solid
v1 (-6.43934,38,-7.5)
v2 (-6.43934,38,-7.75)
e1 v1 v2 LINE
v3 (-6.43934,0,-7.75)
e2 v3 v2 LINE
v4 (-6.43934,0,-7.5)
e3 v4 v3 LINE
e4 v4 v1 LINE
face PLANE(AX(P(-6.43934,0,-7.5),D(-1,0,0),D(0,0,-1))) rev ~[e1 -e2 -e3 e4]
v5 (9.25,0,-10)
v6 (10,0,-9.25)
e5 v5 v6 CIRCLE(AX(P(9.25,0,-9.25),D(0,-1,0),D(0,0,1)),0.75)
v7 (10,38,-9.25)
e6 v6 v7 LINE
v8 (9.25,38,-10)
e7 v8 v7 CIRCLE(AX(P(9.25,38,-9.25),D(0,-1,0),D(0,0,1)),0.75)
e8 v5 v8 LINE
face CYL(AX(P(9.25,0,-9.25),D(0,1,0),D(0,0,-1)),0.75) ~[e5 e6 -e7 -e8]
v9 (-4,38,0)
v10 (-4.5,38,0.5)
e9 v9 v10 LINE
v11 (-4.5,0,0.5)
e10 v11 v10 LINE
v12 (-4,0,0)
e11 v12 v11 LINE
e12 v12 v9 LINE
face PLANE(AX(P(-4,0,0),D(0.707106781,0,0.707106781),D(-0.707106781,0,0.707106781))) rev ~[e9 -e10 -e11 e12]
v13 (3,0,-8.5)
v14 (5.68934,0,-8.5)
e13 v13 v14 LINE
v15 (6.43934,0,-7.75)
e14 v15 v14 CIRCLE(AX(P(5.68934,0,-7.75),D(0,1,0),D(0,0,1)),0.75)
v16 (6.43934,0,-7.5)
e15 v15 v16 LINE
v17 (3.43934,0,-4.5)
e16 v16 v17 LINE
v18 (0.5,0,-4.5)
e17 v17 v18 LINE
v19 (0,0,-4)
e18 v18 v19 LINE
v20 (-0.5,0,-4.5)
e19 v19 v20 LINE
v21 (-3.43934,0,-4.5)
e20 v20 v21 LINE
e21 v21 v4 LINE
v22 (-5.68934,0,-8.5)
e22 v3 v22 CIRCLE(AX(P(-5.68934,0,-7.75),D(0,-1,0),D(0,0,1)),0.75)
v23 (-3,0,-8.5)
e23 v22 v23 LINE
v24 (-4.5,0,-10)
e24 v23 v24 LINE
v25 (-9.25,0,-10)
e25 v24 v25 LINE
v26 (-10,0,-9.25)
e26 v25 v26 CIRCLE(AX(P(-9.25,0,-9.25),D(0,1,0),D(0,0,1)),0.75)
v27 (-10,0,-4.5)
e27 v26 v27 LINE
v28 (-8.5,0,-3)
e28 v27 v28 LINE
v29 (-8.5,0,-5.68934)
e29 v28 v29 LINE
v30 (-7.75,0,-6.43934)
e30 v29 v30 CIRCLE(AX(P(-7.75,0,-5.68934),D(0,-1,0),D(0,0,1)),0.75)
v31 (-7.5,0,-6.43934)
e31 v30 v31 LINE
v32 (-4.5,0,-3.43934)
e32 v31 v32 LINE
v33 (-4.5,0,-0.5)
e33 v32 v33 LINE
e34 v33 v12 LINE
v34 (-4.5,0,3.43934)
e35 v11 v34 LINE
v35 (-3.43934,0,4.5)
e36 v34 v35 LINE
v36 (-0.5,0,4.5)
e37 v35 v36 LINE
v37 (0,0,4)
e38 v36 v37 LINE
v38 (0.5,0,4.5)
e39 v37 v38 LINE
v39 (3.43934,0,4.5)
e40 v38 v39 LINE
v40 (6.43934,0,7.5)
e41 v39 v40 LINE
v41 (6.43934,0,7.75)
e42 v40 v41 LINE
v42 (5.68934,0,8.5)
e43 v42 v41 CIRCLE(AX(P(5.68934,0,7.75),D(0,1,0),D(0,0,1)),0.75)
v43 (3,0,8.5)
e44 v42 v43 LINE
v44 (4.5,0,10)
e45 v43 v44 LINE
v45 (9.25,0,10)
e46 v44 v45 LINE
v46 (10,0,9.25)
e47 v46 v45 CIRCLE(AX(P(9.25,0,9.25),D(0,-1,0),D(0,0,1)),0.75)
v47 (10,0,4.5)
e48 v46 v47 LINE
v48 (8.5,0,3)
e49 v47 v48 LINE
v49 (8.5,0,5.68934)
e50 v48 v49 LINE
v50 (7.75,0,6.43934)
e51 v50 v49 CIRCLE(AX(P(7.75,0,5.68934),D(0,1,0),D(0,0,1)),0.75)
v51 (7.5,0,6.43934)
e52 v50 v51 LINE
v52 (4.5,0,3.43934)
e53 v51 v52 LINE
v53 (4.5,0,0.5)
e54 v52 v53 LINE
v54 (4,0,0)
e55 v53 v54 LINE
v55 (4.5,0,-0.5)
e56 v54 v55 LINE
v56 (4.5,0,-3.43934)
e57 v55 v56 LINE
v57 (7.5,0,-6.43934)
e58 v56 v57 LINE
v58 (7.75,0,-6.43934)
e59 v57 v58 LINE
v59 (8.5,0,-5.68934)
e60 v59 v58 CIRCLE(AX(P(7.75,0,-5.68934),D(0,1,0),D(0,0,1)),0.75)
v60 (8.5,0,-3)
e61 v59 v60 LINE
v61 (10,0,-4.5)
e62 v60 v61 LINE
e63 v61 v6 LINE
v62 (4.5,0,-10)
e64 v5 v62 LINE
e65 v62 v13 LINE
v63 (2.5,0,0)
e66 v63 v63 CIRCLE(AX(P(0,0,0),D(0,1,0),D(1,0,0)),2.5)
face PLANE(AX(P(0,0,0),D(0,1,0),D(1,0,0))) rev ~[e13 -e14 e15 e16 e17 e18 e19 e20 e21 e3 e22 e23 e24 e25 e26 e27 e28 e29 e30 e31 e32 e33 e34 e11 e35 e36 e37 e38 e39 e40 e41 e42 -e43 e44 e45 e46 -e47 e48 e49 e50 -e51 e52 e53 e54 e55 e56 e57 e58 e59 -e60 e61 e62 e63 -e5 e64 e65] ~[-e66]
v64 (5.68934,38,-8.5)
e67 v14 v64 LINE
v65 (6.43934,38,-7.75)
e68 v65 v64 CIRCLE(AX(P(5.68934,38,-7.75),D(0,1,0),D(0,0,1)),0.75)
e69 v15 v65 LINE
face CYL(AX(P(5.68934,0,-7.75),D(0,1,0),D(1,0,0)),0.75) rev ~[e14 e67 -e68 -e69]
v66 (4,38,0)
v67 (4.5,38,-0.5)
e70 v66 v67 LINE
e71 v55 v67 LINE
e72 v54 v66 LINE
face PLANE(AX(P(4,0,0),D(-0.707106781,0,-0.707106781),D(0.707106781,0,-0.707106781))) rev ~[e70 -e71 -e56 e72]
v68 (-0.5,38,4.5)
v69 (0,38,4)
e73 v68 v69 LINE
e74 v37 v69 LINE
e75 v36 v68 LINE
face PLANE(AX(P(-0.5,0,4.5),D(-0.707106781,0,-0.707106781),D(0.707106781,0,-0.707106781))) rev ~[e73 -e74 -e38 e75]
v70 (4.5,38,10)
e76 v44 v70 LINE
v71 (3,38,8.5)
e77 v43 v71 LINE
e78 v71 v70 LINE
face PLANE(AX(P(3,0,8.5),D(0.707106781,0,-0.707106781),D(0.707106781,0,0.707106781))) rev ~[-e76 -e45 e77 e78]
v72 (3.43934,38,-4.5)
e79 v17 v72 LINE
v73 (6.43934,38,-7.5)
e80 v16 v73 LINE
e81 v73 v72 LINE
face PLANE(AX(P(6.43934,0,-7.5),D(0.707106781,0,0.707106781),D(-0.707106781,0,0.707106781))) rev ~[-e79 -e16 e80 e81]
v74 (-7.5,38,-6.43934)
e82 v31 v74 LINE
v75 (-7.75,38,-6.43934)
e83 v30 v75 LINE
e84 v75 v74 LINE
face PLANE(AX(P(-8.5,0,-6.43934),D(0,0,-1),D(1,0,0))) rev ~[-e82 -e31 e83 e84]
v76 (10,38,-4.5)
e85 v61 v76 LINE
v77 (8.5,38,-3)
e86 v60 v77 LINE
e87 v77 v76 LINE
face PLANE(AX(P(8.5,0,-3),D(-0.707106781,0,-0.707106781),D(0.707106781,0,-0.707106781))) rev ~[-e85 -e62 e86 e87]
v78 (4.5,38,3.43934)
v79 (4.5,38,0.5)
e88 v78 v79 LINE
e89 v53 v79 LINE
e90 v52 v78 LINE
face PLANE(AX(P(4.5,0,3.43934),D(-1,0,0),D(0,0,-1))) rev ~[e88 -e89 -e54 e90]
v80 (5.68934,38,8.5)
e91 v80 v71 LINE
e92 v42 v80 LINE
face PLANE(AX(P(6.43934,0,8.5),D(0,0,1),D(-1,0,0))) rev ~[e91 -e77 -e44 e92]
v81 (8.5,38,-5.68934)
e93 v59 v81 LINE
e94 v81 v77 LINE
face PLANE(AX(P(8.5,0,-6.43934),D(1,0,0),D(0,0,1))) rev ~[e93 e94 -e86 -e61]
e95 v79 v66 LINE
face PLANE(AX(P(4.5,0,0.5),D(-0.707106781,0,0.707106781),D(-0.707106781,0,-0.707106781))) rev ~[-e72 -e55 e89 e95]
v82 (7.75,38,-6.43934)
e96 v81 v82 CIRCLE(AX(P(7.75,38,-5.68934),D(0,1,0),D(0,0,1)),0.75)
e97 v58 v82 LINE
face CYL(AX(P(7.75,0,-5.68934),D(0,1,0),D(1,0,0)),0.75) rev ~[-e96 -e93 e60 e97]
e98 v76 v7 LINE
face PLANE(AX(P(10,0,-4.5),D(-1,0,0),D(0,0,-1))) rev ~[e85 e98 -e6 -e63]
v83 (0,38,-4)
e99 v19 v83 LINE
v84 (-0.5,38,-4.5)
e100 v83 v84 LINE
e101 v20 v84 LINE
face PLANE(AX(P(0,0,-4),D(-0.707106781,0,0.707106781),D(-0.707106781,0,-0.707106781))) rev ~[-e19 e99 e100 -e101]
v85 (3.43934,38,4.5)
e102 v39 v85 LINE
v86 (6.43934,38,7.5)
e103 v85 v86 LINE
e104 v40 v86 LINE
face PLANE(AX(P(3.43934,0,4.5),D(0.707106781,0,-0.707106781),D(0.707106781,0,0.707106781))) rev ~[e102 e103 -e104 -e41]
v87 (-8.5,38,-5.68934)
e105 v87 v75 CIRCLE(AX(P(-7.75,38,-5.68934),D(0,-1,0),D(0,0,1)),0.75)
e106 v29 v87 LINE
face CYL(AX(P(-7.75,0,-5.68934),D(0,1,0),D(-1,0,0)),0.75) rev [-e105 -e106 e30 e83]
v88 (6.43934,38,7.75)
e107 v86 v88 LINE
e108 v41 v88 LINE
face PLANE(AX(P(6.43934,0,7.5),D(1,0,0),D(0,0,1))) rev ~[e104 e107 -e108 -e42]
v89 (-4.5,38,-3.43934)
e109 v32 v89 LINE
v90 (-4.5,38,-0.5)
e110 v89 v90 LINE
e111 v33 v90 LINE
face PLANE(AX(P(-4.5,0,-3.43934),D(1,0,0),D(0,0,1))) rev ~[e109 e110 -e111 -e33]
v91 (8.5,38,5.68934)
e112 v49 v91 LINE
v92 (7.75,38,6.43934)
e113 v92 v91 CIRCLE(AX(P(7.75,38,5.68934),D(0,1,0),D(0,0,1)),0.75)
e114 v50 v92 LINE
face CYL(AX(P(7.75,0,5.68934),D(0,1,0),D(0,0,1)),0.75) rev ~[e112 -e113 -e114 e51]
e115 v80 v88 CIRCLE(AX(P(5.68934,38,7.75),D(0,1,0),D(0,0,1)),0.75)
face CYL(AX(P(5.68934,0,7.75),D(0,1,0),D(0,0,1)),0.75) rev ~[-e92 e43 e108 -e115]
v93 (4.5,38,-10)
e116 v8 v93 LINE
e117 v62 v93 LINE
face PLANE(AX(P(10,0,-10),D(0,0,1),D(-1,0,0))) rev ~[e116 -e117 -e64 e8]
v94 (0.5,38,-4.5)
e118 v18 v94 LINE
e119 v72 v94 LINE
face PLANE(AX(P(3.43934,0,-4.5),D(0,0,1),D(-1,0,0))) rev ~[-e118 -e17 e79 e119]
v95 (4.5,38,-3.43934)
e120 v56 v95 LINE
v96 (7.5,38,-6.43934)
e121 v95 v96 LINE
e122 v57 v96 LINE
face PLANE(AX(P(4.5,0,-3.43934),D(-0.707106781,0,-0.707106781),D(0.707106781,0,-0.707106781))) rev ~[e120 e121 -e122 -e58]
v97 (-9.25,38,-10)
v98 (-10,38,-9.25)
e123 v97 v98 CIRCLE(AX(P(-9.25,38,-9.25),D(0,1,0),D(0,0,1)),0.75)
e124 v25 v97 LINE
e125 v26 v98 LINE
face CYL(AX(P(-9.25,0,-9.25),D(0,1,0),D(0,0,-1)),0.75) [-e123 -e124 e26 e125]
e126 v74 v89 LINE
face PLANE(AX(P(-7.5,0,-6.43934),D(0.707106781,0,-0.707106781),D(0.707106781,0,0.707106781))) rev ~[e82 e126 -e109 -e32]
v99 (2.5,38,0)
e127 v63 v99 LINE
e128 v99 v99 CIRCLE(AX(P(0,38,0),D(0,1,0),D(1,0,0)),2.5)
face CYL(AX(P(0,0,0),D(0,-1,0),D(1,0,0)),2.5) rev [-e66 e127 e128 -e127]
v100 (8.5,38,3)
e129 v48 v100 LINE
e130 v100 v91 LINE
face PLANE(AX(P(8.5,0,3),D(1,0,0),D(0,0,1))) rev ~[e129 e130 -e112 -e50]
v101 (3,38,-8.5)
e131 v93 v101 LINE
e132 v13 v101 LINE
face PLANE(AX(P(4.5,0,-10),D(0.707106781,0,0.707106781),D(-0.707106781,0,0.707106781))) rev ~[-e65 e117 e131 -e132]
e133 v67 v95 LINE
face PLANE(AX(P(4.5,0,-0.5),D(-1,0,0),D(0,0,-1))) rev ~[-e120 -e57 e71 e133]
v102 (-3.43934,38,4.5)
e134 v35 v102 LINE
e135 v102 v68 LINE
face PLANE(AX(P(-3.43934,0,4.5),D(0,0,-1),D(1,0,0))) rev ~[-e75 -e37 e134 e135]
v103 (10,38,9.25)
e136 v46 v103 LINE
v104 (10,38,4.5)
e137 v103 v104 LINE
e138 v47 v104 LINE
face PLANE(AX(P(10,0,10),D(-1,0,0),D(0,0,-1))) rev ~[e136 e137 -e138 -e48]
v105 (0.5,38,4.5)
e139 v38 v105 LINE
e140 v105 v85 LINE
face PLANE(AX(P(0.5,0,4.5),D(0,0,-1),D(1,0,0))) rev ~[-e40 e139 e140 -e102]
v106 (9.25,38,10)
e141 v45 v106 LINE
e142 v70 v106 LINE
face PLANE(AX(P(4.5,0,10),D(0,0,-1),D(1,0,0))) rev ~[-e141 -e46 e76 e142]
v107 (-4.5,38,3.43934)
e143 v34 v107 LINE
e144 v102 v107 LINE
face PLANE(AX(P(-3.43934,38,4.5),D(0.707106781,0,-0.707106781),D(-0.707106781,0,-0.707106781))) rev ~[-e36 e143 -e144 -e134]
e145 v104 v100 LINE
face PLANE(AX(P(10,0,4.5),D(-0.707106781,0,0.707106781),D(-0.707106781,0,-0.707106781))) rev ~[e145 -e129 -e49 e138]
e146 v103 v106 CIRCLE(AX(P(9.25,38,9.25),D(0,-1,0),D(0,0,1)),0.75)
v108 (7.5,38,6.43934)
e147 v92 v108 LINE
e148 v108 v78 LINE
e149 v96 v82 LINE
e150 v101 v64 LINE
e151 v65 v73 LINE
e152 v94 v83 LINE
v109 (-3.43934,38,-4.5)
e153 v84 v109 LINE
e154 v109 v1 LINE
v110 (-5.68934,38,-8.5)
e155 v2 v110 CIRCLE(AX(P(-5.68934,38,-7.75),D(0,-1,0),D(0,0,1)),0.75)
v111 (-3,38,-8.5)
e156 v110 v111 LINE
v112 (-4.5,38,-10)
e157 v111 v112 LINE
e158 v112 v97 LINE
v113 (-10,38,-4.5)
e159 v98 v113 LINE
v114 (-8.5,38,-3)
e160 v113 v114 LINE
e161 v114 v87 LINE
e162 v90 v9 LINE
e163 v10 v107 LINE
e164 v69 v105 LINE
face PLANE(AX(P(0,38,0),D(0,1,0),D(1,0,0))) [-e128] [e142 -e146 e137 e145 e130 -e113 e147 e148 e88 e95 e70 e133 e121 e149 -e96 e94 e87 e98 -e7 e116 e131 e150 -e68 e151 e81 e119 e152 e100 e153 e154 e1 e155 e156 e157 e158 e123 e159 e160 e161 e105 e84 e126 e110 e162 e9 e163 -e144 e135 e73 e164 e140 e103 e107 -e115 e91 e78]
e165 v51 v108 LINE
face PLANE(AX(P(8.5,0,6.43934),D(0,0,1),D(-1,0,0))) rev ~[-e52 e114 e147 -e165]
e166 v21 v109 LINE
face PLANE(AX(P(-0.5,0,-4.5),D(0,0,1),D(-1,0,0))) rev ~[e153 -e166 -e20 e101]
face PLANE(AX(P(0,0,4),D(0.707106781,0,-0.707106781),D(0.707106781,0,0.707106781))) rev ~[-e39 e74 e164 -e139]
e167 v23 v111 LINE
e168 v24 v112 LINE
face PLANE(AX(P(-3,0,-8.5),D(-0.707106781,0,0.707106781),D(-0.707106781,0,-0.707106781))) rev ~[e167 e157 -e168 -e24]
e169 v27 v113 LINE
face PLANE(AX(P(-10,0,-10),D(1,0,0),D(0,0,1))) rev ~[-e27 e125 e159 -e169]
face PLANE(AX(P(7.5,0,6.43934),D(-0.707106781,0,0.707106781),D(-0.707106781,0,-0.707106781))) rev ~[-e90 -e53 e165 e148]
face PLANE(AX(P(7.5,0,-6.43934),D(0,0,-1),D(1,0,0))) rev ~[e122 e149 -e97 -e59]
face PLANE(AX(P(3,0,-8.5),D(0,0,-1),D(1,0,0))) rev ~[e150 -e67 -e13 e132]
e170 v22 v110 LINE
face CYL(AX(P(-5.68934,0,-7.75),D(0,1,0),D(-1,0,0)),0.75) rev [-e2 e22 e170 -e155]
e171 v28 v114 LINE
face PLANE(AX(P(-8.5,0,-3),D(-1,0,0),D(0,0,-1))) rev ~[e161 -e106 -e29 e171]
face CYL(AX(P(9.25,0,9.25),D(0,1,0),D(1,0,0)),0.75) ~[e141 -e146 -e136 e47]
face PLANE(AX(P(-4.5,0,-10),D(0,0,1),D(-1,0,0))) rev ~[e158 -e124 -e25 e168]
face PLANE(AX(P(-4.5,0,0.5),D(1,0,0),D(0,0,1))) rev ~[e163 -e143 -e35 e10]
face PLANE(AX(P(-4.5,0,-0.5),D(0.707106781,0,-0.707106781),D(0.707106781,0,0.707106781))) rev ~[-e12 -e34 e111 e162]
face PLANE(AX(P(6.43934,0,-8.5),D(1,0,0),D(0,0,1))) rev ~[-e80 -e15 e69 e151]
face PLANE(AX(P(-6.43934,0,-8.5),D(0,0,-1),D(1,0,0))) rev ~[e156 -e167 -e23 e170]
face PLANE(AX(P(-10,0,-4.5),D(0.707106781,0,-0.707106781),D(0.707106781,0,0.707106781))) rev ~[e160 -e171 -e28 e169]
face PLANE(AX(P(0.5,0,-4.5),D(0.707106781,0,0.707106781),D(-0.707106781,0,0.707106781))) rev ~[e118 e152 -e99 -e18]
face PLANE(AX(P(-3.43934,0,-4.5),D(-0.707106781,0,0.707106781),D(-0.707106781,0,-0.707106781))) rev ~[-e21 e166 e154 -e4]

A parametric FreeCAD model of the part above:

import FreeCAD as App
import Part
import Sketcher


def edges_at(feature, points):
    """Names of the edges that pass closest to the given points."""
    edges = feature.Shape.Edges
    near = lambda p: min(range(len(edges)), key=lambda i: edges[i].distToShape(Part.Vertex(*p))[0])
    return sorted({f"Edge{near(p) + 1}" for p in points})


def add_polygon(sketch, points):
    """Adds a closed chain of lines whose ends are joined by coincident constraints."""
    first, n = sketch.GeometryCount, len(points)
    for a, b in zip(points, points[1:] + points[:1]):
        sketch.addGeometry(Part.LineSegment(App.Vector(*a, 0), App.Vector(*b, 0)), False)
    for i in range(n):
        sketch.addConstraint(Sketcher.Constraint("Coincident", first + i, 2, first + (i + 1) % n, 1))

doc = App.newDocument("Part")
params = doc.addObject("Spreadsheet::Sheet", "Params")
for row, (alias, value) in enumerate([
    ("sketch1_diameter", "5 mm"),
    ("sketch1_width", "1 mm"),
    ("sketch1_width2", "5.5 mm"),
    ("pad1_length", "38 mm"),
    ("fillet_radius", "0.75 mm"),
    ("sketch2_width", "5.5 mm"),
    ("sketch2_length", "1.5 mm"),
], start=1):
    params.set(f"A{row}", alias)
    params.set(f"B{row}", "=" + value)
    params.setAlias(f"B{row}", alias)

body = doc.addObject("PartDesign::Body", "Body")

# Sketch on XZ plane
sketch1 = body.newObject("Sketcher::SketchObject", "Sketch")
sketch1.AttachmentSupport = (doc.getObject("XZ_Plane"), [""])
sketch1.MapMode = "FlatFace"
add_polygon(sketch1, [(0, -4), (-0.5, -4.5), (-3.4, -4.5), (-6.4, -7.5), (-6.4, -8.5), (-3, -8.5), (-4.5, -10), (-10, -10), (-10, -4.5), (-8.5, -3), (-8.5, -6.4), (-7.5, -6.4), (-4.5, -3.4), (-4.5, -0.5), (-4, 0), (-4.5, 0.5), (-4.5, 3.4), (-7.5, 6.4), (-8.5, 6.4), (-8.5, 3), (-10, 4.5), (-10, 10), (-4.5, 10), (-3, 8.5), (-6.4, 8.5), (-6.4, 7.5), (-3.4, 4.5), (-0.5, 4.5), (0, 4), (0.5, 4.5), (3.4, 4.5), (6.4, 7.5), (6.4, 8.5), (3, 8.5), (4.5, 10), (10, 10), (10, 4.5), (8.5, 3), (8.5, 6.4), (7.5, 6.4), (4.5, 3.4), (4.5, 0.5), (4, 0), (4.5, -0.5), (4.5, -3.4), (7.5, -6.4), (8.5, -6.4), (8.5, -3), (10, -4.5), (10, -10), (4.5, -10), (3, -8.5), (6.4, -8.5), (6.4, -7.5), (3.4, -4.5), (0.5, -4.5)])  # lines 0-55
sketch1.addGeometry(Part.Circle(App.Vector(0, 0, 0), App.Vector(0, 0, 1), 2.5), False)  # 56
sketch1.addConstraint(Sketcher.Constraint("Horizontal", 1))
sketch1.addConstraint(Sketcher.Constraint("Vertical", 3))
sketch1.addConstraint(Sketcher.Constraint("Horizontal", 4))
sketch1.addConstraint(Sketcher.Constraint("Horizontal", 6))
sketch1.addConstraint(Sketcher.Constraint("Vertical", 7))
sketch1.addConstraint(Sketcher.Constraint("Vertical", 9))
sketch1.addConstraint(Sketcher.Constraint("Horizontal", 10))
sketch1.addConstraint(Sketcher.Constraint("Vertical", 12))
sketch1.addConstraint(Sketcher.Constraint("Vertical", 15))
sketch1.addConstraint(Sketcher.Constraint("Horizontal", 17))
sketch1.addConstraint(Sketcher.Constraint("Vertical", 18))
sketch1.addConstraint(Sketcher.Constraint("Vertical", 20))
sketch1.addConstraint(Sketcher.Constraint("Horizontal", 21))
sketch1.addConstraint(Sketcher.Constraint("Horizontal", 23))
sketch1.addConstraint(Sketcher.Constraint("Vertical", 24))
sketch1.addConstraint(Sketcher.Constraint("Horizontal", 26))
sketch1.addConstraint(Sketcher.Constraint("Horizontal", 29))
sketch1.addConstraint(Sketcher.Constraint("Vertical", 31))
sketch1.addConstraint(Sketcher.Constraint("Horizontal", 32))
sketch1.addConstraint(Sketcher.Constraint("Horizontal", 34))
sketch1.addConstraint(Sketcher.Constraint("Vertical", 35))
sketch1.addConstraint(Sketcher.Constraint("Vertical", 37))
sketch1.addConstraint(Sketcher.Constraint("Horizontal", 38))
sketch1.addConstraint(Sketcher.Constraint("Vertical", 40))
sketch1.addConstraint(Sketcher.Constraint("Vertical", 43))
sketch1.addConstraint(Sketcher.Constraint("Horizontal", 45))
sketch1.addConstraint(Sketcher.Constraint("Vertical", 46))
sketch1.addConstraint(Sketcher.Constraint("Vertical", 48))
sketch1.addConstraint(Sketcher.Constraint("Horizontal", 49))
sketch1.addConstraint(Sketcher.Constraint("Horizontal", 51))
sketch1.addConstraint(Sketcher.Constraint("Vertical", 52))
sketch1.addConstraint(Sketcher.Constraint("Horizontal", 54))
sketch1.addConstraint(Sketcher.Constraint("Coincident", 56, 3, -1, 1))
sketch1.addConstraint(Sketcher.Constraint("Symmetric", 0, 2, 28, 2, -1, 1))
sketch1.addConstraint(Sketcher.Constraint("Symmetric", 2, 2, 30, 2, -1, 1))
sketch1.addConstraint(Sketcher.Constraint("Symmetric", 4, 2, 32, 2, -1, 1))
sketch1.addConstraint(Sketcher.Constraint("Symmetric", 5, 2, 33, 2, -1, 1))
sketch1.addConstraint(Sketcher.Constraint("Symmetric", 7, 2, 35, 2, -1, 1))
sketch1.addConstraint(Sketcher.Constraint("Symmetric", 8, 2, 36, 2, -1, 1))
sketch1.addConstraint(Sketcher.Constraint("Symmetric", 10, 2, 38, 2, -1, 1))
sketch1.addConstraint(Sketcher.Constraint("Symmetric", 11, 2, 39, 2, -1, 1))
sketch1.addConstraint(Sketcher.Constraint("Symmetric", 13, 2, 41, 2, -1, 1))
sketch1.addConstraint(Sketcher.Constraint("Symmetric", 14, 2, 42, 2, -1, 1))
sketch1.addConstraint(Sketcher.Constraint("Symmetric", 16, 2, 44, 2, -1, 1))
sketch1.addConstraint(Sketcher.Constraint("Symmetric", 18, 2, 46, 2, -1, 1))
sketch1.addConstraint(Sketcher.Constraint("Symmetric", 19, 2, 47, 2, -1, 1))
sketch1.addConstraint(Sketcher.Constraint("Symmetric", 21, 2, 49, 2, -1, 1))
sketch1.addConstraint(Sketcher.Constraint("Symmetric", 22, 2, 50, 2, -1, 1))
sketch1.addConstraint(Sketcher.Constraint("Symmetric", 24, 2, 52, 2, -1, 1))
sketch1.addConstraint(Sketcher.Constraint("Symmetric", 25, 2, 53, 2, -1, 1))
sketch1.addConstraint(Sketcher.Constraint("Symmetric", 27, 2, 55, 2, -1, 1))
sketch1.addConstraint(Sketcher.Constraint("Symmetric", 26, 2, 28, 2, -2))
sketch1.addConstraint(Sketcher.Constraint("Symmetric", 24, 2, 30, 2, -2))
sketch1.addConstraint(Sketcher.Constraint("Symmetric", 22, 2, 32, 2, -2))
sketch1.addConstraint(Sketcher.Constraint("Symmetric", 21, 2, 33, 2, -2))
sketch1.addConstraint(Sketcher.Constraint("Symmetric", 19, 2, 35, 2, -2))
sketch1.addConstraint(Sketcher.Constraint("Symmetric", 18, 2, 36, 2, -2))
sketch1.addConstraint(Sketcher.Constraint("Symmetric", 16, 2, 38, 2, -2))
sketch1.addConstraint(Sketcher.Constraint("Symmetric", 15, 2, 39, 2, -2))
sketch1.addConstraint(Sketcher.Constraint("PointOnObject", 13, 2, -1))
sketch1.addConstraint(Sketcher.Constraint("PointOnObject", 27, 2, -2))
sketch1.addConstraint(Sketcher.Constraint("Parallel", 0, 2))
sketch1.addConstraint(Sketcher.Constraint("Parallel", 2, 5))
sketch1.addConstraint(Sketcher.Constraint("Parallel", 5, 8))
sketch1.addConstraint(Sketcher.Constraint("Parallel", 8, 11))
sketch1.addConstraint(Sketcher.Constraint("Parallel", 11, 13))
sketch1.addConstraint(Sketcher.Constraint("Perpendicular", 13, 14))
sketch1.addConstraint(Sketcher.Constraint("Parallel", 14, 16))
sketch1.addConstraint(Sketcher.Constraint("Parallel", 22, 25))
sketch1.addConstraint(Sketcher.Constraint("Parallel", 28, 30))
sketch1.addConstraint(Sketcher.Constraint("Parallel", 39, 41))
sketch1.addConstraint(Sketcher.Constraint("Parallel", 42, 44))
sketch1.addConstraint(Sketcher.Constraint("Parallel", 53, 55))
sketch1.addConstraint(Sketcher.Constraint("Horizontal", 1, 2, 7, 2))
sketch1.addConstraint(Sketcher.Constraint("Vertical", 5, 2, 11, 2))
sketch1.addConstraint(Sketcher.Constraint("Equal", 45, 3))
sketch1.addConstraint(Sketcher.Constraint("Equal", 49, 7))
sketch1.addConstraint(Sketcher.Constraint("Equal", 51, 9))
sketch1.addConstraint(Sketcher.Constraint("Equal", 54, 12))
sketch1.addConstraint(Sketcher.Constraint("Equal", 5, 8))
sketch1.addConstraint(Sketcher.Constraint("Equal", 0, 13))
sketch1.addConstraint(Sketcher.Constraint("Diameter", 56, 5.0))
sketch1.addConstraint(Sketcher.Constraint("DistanceX", 10, 1, 10, 2, 1.0))
sketch1.addConstraint(Sketcher.Constraint("DistanceX", 6, 2, 6, 1, 5.5))
sketch1.addConstraint(Sketcher.Constraint("DistanceX", 4, 2, -1, 1, 3.0))
sketch1.addConstraint(Sketcher.Constraint("DistanceY", 5, 2, -1, 1, 10.0))
sketch1.addConstraint(Sketcher.Constraint("DistanceX", 13, 2, -1, 1, 4.0))
sketch1.addConstraint(Sketcher.Constraint("DistanceX", 1, 2, 1, 1, 2.93934))
sketch1.setExpression("Constraints[137]", "Params.sketch1_diameter")
sketch1.setExpression("Constraints[138]", "Params.sketch1_width")
sketch1.setExpression("Constraints[139]", "Params.sketch1_width2")
pad1 = body.newObject("PartDesign::Pad", "Pad")
pad1.Profile = sketch1
pad1.setExpression("Length", "Params.pad1_length")
pad1.Reversed = True
doc.recompute()

fillet = body.newObject("PartDesign::Fillet", "Fillet")
fillet.Base = (pad1, edges_at(pad1, [
    (6.439, 19, -8.5),
    (10, 19, -10),
    (8.5, 19, -6.439),
    (8.5, 19, 6.439),
    (10, 19, 10),
    (6.439, 19, 8.5),
    (-6.439, 19, 8.5),
    (-10, 19, 10),
    (-8.5, 19, 6.439),
    (-8.5, 19, -6.439),
    (-10, 19, -10),
    (-6.439, 19, -8.5),
]))
fillet.setExpression("Radius", "Params.fillet_radius")

# Sketch on XZ plane
sketch2 = body.newObject("Sketcher::SketchObject", "Sketch001")
sketch2.AttachmentSupport = (doc.getObject("XZ_Plane"), [""])
sketch2.MapMode = "FlatFace"
sketch2.AttachmentOffset = App.Placement(App.Vector(0, 0, -38), App.Rotation())
add_polygon(sketch2, [(-3.4, 4.5), (-4.5, 3.4), (-8.5, 3), (-10, 4.5), (-10, 10), (-4.5, 10), (-3, 8.5)])  # lines 0-6
sketch2.addConstraint(Sketcher.Constraint("Vertical", 3))
sketch2.addConstraint(Sketcher.Constraint("Horizontal", 4))
sketch2.addConstraint(Sketcher.Constraint("Perpendicular", 0, 2))
sketch2.addConstraint(Sketcher.Constraint("Parallel", 2, 5))
sketch2.addConstraint(Sketcher.Constraint("Horizontal", 2, 2, 6, 2))
sketch2.addConstraint(Sketcher.Constraint("Vertical", 0, 2, 4, 2))
sketch2.addConstraint(Sketcher.Constraint("Equal", 4, 3))
sketch2.addConstraint(Sketcher.Constraint("Equal", 2, 5))
sketch2.addConstraint(Sketcher.Constraint("Equal", 1, 6))
sketch2.addConstraint(Sketcher.Constraint("DistanceX", 4, 1, 4, 2, 5.5))
sketch2.addConstraint(Sketcher.Constraint("DistanceY", -1, 1, 1, 2, 3.0))
sketch2.addConstraint(Sketcher.Constraint("DistanceX", 2, 2, -1, 1, 10.0))
sketch2.addConstraint(Sketcher.Constraint("DistanceY", -1, 1, 3, 2, 10.0))
sketch2.addConstraint(Sketcher.Constraint("Distance", 0, 1.5))
sketch2.setExpression("Constraints[16]", "Params.sketch2_width")
sketch2.setExpression("Constraints[20]", "Params.sketch2_length")
pocket1 = body.newObject("PartDesign::Pocket", "Pocket")
pocket1.Profile = sketch2
pocket1.Type = "UpToFirst"
pocket1.Reversed = True

doc.recompute()
